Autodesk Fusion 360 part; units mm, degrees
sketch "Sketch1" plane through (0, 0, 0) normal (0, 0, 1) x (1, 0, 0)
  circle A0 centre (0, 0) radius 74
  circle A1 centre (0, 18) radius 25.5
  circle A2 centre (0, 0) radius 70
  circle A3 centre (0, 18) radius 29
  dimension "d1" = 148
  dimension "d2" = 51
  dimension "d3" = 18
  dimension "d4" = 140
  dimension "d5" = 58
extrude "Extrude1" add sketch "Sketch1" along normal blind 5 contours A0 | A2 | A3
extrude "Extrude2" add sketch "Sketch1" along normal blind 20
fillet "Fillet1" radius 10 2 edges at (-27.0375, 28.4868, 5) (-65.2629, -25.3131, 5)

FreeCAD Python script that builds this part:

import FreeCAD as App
import Part
import Sketcher

V = App.Vector


def edges_at(feature, points):
    """Names of the edges that pass closest to the given points."""
    edges = feature.Shape.Edges
    near = lambda p: min(range(len(edges)), key=lambda i: edges[i].distToShape(Part.Vertex(*p))[0])
    return sorted({f"Edge{near(p) + 1}" for p in points})

doc = App.newDocument("Part")
body = doc.addObject("PartDesign::Body", "Body")

# Sketch on XY plane
sketch1 = body.newObject("Sketcher::SketchObject", "Sketch")
sketch1.AttachmentSupport = (doc.getObject("XY_Plane"), [""])
sketch1.MapMode = "FlatFace"
sketch1.addGeometry([
    Part.Circle(V(0, 0, 0), V(0, 0, 1), 74),
    Part.Circle(V(0, 18, 0), V(0, 0, 1), 26),
], False)
sketch1.addConstraint([
    Sketcher.Constraint("Coincident", 0, 3, -1, 1),
    Sketcher.Constraint("PointOnObject", 1, 3, -2),
    Sketcher.Constraint("Diameter", 0, 148.0),
    Sketcher.Constraint("Diameter", 1, 51.0),
    Sketcher.Constraint("DistanceY", -1, 1, 1, 3, 18.0),
])
pad1 = body.newObject("PartDesign::Pad", "Pad")
pad1.Profile = sketch1
pad1.Length = 5

# Sketch on XY plane
sketch2 = body.newObject("Sketcher::SketchObject", "Sketch001")
sketch2.AttachmentSupport = (doc.getObject("XY_Plane"), [""])
sketch2.MapMode = "FlatFace"
sketch2.addGeometry([
    Part.Circle(V(0, 0, 0), V(0, 0, 1), 74),
    Part.Circle(V(0, 0, 0), V(0, 0, 1), 70),
    Part.Circle(V(0, 18, 0), V(0, 0, 1), 29),
    Part.Circle(V(0, 18, 0), V(0, 0, 1), 26),
], False)
sketch2.addConstraint([
    Sketcher.Constraint("Coincident", 0, 3, -1, 1),
    Sketcher.Constraint("Coincident", 1, 3, -1, 1),
    Sketcher.Constraint("Coincident", 3, 3, 2, 3),
    Sketcher.Constraint("PointOnObject", 2, 3, -2),
    Sketcher.Constraint("Diameter", 0, 148.0),
    Sketcher.Constraint("Diameter", 1, 140.0),
    Sketcher.Constraint("Diameter", 2, 58.0),
    Sketcher.Constraint("Diameter", 3, 51.0),
    Sketcher.Constraint("DistanceY", -1, 1, 2, 3, 18.0),
])
pad2 = body.newObject("PartDesign::Pad", "Pad001")
pad2.Profile = sketch2
pad2.Length = 20
doc.recompute()

fillet = body.newObject("PartDesign::Fillet", "Fillet")
fillet.Base = (pad2, edges_at(pad2, [(-27.038, 28.487, 5), (-65.263, -25.313, 5)]))
fillet.Radius = 10

doc.recompute()
